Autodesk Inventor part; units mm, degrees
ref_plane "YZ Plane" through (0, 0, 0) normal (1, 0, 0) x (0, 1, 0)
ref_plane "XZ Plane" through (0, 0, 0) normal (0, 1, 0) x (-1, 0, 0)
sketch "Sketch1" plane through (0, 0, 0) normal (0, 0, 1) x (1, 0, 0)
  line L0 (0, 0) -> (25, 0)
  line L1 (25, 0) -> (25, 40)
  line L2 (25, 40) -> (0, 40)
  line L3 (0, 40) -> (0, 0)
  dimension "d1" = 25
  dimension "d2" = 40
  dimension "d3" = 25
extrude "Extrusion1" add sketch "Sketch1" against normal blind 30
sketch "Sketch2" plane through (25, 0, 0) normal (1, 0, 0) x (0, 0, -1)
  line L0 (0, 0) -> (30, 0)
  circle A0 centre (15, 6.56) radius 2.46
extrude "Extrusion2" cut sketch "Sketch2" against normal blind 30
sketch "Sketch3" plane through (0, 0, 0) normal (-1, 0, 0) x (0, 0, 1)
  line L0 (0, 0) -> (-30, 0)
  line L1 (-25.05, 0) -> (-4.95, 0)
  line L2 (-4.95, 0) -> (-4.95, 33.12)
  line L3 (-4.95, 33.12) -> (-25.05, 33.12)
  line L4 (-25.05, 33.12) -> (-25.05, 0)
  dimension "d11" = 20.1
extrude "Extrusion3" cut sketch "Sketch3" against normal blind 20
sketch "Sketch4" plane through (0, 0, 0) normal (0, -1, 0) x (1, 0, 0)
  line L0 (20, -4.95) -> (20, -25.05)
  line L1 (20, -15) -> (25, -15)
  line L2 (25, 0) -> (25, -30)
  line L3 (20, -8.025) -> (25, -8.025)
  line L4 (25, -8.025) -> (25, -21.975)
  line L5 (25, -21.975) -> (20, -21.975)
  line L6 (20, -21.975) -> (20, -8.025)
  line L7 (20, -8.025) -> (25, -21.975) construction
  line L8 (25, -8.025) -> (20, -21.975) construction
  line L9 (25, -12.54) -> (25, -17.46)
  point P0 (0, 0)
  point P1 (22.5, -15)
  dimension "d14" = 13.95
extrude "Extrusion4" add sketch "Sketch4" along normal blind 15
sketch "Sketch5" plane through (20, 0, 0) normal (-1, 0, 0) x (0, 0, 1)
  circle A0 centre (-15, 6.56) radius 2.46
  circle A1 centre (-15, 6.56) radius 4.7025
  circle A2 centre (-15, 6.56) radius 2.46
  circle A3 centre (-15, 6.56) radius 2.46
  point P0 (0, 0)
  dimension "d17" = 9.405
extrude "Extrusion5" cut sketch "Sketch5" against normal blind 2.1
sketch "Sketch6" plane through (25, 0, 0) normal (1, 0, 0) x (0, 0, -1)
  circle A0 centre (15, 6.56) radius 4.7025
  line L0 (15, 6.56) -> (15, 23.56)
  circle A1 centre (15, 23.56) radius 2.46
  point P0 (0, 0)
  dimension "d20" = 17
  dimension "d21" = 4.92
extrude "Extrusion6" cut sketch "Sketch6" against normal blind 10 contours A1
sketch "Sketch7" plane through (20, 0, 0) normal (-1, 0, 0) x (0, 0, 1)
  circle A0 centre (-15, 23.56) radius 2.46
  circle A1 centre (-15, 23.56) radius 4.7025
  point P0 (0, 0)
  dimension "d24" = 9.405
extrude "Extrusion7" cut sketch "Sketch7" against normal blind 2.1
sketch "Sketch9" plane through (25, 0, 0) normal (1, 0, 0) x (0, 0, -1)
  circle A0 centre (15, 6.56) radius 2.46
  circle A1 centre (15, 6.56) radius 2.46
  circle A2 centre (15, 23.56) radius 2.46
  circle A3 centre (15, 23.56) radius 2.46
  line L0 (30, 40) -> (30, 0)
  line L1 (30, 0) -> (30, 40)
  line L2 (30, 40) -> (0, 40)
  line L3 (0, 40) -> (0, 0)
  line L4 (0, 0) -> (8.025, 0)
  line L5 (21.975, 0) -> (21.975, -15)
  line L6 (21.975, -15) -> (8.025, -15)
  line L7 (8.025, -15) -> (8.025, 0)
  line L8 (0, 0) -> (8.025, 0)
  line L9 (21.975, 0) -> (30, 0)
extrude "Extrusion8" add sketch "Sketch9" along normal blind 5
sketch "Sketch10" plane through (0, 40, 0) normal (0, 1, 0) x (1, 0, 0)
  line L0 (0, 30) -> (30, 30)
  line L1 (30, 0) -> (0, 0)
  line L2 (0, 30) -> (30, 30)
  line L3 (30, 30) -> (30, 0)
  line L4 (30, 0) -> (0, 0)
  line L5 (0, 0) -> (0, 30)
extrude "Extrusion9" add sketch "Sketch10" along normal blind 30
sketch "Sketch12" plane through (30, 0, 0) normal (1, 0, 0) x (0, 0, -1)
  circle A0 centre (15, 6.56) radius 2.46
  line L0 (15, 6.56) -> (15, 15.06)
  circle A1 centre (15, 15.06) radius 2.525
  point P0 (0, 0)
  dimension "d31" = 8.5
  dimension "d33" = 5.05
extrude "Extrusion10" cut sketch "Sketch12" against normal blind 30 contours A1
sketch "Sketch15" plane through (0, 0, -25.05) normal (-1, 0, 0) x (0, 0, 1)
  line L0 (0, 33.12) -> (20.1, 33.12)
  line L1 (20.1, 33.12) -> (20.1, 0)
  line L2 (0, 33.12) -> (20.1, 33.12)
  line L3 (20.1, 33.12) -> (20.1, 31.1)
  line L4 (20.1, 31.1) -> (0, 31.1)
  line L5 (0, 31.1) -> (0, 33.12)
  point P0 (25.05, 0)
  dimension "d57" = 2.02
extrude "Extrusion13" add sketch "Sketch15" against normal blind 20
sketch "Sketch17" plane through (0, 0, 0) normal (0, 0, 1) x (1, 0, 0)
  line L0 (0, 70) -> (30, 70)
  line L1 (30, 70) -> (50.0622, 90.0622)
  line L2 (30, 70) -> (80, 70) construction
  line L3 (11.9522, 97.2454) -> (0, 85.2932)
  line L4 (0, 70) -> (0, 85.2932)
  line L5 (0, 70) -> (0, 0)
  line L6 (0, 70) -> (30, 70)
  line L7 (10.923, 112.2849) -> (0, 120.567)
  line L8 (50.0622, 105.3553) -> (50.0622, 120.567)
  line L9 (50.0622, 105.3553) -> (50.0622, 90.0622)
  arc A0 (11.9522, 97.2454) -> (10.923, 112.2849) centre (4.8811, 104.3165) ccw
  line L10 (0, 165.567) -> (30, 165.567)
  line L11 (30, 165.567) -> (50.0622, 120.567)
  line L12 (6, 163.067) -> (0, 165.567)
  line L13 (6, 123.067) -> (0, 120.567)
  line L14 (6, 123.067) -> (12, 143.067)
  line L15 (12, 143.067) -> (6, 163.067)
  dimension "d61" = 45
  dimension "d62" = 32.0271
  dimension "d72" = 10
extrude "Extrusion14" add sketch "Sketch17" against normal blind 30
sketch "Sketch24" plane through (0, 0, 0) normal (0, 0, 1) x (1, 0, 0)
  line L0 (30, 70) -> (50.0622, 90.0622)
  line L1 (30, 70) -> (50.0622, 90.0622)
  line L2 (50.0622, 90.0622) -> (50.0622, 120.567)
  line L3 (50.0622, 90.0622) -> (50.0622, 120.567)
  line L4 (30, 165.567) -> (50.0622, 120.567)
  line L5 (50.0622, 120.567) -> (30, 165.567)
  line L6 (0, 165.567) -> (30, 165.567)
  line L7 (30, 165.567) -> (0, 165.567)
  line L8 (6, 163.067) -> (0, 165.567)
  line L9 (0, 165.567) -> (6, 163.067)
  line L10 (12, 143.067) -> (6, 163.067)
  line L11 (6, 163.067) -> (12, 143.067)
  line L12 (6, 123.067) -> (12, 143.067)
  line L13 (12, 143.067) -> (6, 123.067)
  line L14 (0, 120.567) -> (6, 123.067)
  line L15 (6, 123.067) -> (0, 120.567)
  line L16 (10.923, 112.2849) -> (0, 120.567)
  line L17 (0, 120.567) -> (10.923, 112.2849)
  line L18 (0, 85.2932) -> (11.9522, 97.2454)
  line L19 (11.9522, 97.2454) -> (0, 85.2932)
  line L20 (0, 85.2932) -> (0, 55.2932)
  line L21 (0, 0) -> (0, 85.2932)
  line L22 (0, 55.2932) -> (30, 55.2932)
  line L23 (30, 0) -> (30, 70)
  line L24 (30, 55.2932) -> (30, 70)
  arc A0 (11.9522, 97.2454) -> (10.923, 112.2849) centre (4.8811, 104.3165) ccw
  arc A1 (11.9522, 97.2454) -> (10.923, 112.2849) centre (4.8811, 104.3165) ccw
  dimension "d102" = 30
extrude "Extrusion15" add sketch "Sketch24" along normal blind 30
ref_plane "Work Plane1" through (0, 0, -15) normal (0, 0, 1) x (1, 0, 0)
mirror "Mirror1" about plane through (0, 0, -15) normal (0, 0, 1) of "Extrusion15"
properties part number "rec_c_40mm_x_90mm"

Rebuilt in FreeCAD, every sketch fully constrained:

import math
import FreeCAD as App
import Part
import Sketcher
from FreeCAD import Vector
Q = App.Units.Quantity

doc = App.newDocument("Part")
body = doc.addObject("PartDesign::Body", "Body")

# Sketch on XY plane
sketch1 = body.newObject("Sketcher::SketchObject", "Sketch")
sketch1.AttachmentSupport = (doc.getObject("XY_Plane"), [""])
sketch1.MapMode = "FlatFace"
sketch1.addGeometry([
    Part.LineSegment(Vector(0, 40, 0), Vector(0, 0, 0)),
    Part.LineSegment(Vector(0, 0, 0), Vector(25, 0, 0)),
    Part.LineSegment(Vector(25, 0, 0), Vector(25, 40, 0)),
    Part.LineSegment(Vector(25, 40, 0), Vector(0, 40, 0)),
], False)
sketch1.addConstraint([
    Sketcher.Constraint("Coincident", 0, 2, 1, 1),
    Sketcher.Constraint("Coincident", 1, 2, 2, 1),
    Sketcher.Constraint("Coincident", 2, 2, 3, 1),
    Sketcher.Constraint("Coincident", 3, 2, 0, 1),
    Sketcher.Constraint("Vertical", 0),
    Sketcher.Constraint("Horizontal", 1),
    Sketcher.Constraint("Vertical", 2),
    Sketcher.Constraint("Horizontal", 3),
    Sketcher.Constraint("Coincident", 0, 2, -1, 1),
    Sketcher.Constraint("DistanceX", 1, 1, 1, 2, Q("25 mm")),
    Sketcher.Constraint("DistanceY", 0, 2, 0, 1, Q("40 mm")),
])
pad1 = body.newObject("PartDesign::Pad", "Pad")
pad1.Profile = sketch1
pad1.Length = 30
pad1.Reversed = True

# Sketch on YZ plane
sketch2 = body.newObject("Sketcher::SketchObject", "Sketch001")
sketch2.AttachmentSupport = (doc.getObject("YZ_Plane"), [""])
sketch2.MapMode = "FlatFace"
sketch2.AttachmentOffset = App.Placement(Vector(0, 0, 25), App.Rotation())
sketch2.addGeometry(Part.Circle(Vector(6.6, -15, 0), Vector(0, 0, 1), 2.5), False)
sketch2.addConstraint([
    Sketcher.Constraint("Diameter", 0, Q("4.92 mm")),
    Sketcher.Constraint("DistanceY", 0, 3, -1, 1, Q("15 mm")),
    Sketcher.Constraint("DistanceX", -1, 1, 0, 3, Q("6.56 mm")),
])
pocket1 = body.newObject("PartDesign::Pocket", "Pocket")
pocket1.Profile = sketch2
pocket1.Length = 30

# Sketch on YZ plane
sketch3 = body.newObject("Sketcher::SketchObject", "Sketch002")
sketch3.AttachmentSupport = (doc.getObject("YZ_Plane"), [""])
sketch3.MapMode = "FlatFace"
sketch3.addGeometry([
    Part.LineSegment(Vector(0, -25, 0), Vector(0, -5, 0)),
    Part.LineSegment(Vector(0, -5, 0), Vector(33, -5, 0)),
    Part.LineSegment(Vector(33, -5, 0), Vector(33, -25, 0)),
    Part.LineSegment(Vector(33, -25, 0), Vector(0, -25, 0)),
], False)
sketch3.addConstraint([
    Sketcher.Constraint("Coincident", 0, 2, 1, 1),
    Sketcher.Constraint("Coincident", 1, 2, 2, 1),
    Sketcher.Constraint("Coincident", 2, 2, 3, 1),
    Sketcher.Constraint("Coincident", 3, 2, 0, 1),
    Sketcher.Constraint("Vertical", 0),
    Sketcher.Constraint("Horizontal", 1),
    Sketcher.Constraint("Vertical", 2),
    Sketcher.Constraint("Horizontal", 3),
    Sketcher.Constraint("PointOnObject", 0, 2, -2),
    Sketcher.Constraint("DistanceY", 0, 1, 0, 2, Q("20.1 mm")),
    Sketcher.Constraint("DistanceX", 1, 1, 1, 2, Q("33.12 mm")),
    Sketcher.Constraint("DistanceY", 0, 2, -1, 1, Q("4.95 mm")),
])
pocket2 = body.newObject("PartDesign::Pocket", "Pocket001")
pocket2.Profile = sketch3
pocket2.Length = 20
pocket2.Reversed = True

# Sketch on XZ plane
sketch4 = body.newObject("Sketcher::SketchObject", "Sketch003")
sketch4.AttachmentSupport = (doc.getObject("XZ_Plane"), [""])
sketch4.MapMode = "FlatFace"
sketch4.addGeometry([
    Part.LineSegment(Vector(25, -8, 0), Vector(20, -8, 0)),
    Part.LineSegment(Vector(20, -8, 0), Vector(20, -22, 0)),
    Part.LineSegment(Vector(20, -22, 0), Vector(25, -22, 0)),
    Part.LineSegment(Vector(25, -22, 0), Vector(25, -8, 0)),
], False)
sketch4.addConstraint([
    Sketcher.Constraint("Coincident", 0, 2, 1, 1),
    Sketcher.Constraint("Coincident", 1, 2, 2, 1),
    Sketcher.Constraint("Coincident", 2, 2, 3, 1),
    Sketcher.Constraint("Coincident", 3, 2, 0, 1),
    Sketcher.Constraint("Horizontal", 0),
    Sketcher.Constraint("Vertical", 1),
    Sketcher.Constraint("Horizontal", 2),
    Sketcher.Constraint("Vertical", 3),
    Sketcher.Constraint("DistanceY", 1, 2, 1, 1, Q("13.95 mm")),
    Sketcher.Constraint("DistanceX", 0, 2, 0, 1, Q("5 mm")),
    Sketcher.Constraint("DistanceX", -1, 1, 0, 2, Q("20 mm")),
    Sketcher.Constraint("DistanceY", 0, 2, -1, 1, Q("8.025 mm")),
])
pad2 = body.newObject("PartDesign::Pad", "Pad001")
pad2.Profile = sketch4
pad2.Length = 15

# Sketch on YZ plane
sketch5 = body.newObject("Sketcher::SketchObject", "Sketch004")
sketch5.AttachmentSupport = (doc.getObject("YZ_Plane"), [""])
sketch5.MapMode = "FlatFace"
sketch5.AttachmentOffset = App.Placement(Vector(0, 0, 20), App.Rotation())
sketch5.addGeometry([
    Part.Circle(Vector(6.6, -15, 0), Vector(0, 0, 1), 4.7),
    Part.Circle(Vector(6.6, -15, 0), Vector(0, 0, 1), 2.5),
], False)
sketch5.addConstraint([
    Sketcher.Constraint("Coincident", 1, 3, 0, 3),
    Sketcher.Constraint("Diameter", 0, Q("9.405 mm")),
    Sketcher.Constraint("Diameter", 1, Q("4.92 mm")),
    Sketcher.Constraint("DistanceY", 0, 3, -1, 1, Q("15 mm")),
    Sketcher.Constraint("DistanceX", -1, 1, 0, 3, Q("6.56 mm")),
])
pocket3 = body.newObject("PartDesign::Pocket", "Pocket002")
pocket3.Profile = sketch5
pocket3.Length = 2.1
pocket3.Reversed = True

# Sketch on YZ plane
sketch6 = body.newObject("Sketcher::SketchObject", "Sketch005")
sketch6.AttachmentSupport = (doc.getObject("YZ_Plane"), [""])
sketch6.MapMode = "FlatFace"
sketch6.AttachmentOffset = App.Placement(Vector(0, 0, 25), App.Rotation())
sketch6.addGeometry(Part.Circle(Vector(23.6, -15, 0), Vector(0, 0, 1), 2.5), False)
sketch6.addConstraint([
    Sketcher.Constraint("Diameter", 0, Q("4.92 mm")),
    Sketcher.Constraint("DistanceY", 0, 3, -1, 1, Q("15 mm")),
    Sketcher.Constraint("DistanceX", -1, 1, 0, 3, Q("23.56 mm")),
])
pocket4 = body.newObject("PartDesign::Pocket", "Pocket003")
pocket4.Profile = sketch6
pocket4.Length = 10

# Sketch on YZ plane
sketch7 = body.newObject("Sketcher::SketchObject", "Sketch006")
sketch7.AttachmentSupport = (doc.getObject("YZ_Plane"), [""])
sketch7.MapMode = "FlatFace"
sketch7.AttachmentOffset = App.Placement(Vector(0, 0, 20), App.Rotation())
sketch7.addGeometry([
    Part.Circle(Vector(23.6, -15, 0), Vector(0, 0, 1), 4.7),
    Part.Circle(Vector(23.6, -15, 0), Vector(0, 0, 1), 2.5),
], False)
sketch7.addConstraint([
    Sketcher.Constraint("Coincident", 1, 3, 0, 3),
    Sketcher.Constraint("Diameter", 0, Q("9.405 mm")),
    Sketcher.Constraint("Diameter", 1, Q("4.92 mm")),
    Sketcher.Constraint("DistanceY", 0, 3, -1, 1, Q("15 mm")),
    Sketcher.Constraint("DistanceX", -1, 1, 0, 3, Q("23.56 mm")),
])
pocket5 = body.newObject("PartDesign::Pocket", "Pocket004")
pocket5.Profile = sketch7
pocket5.Length = 2.1
pocket5.Reversed = True

# Sketch on YZ plane
sketch8 = body.newObject("Sketcher::SketchObject", "Sketch007")
sketch8.AttachmentSupport = (doc.getObject("YZ_Plane"), [""])
sketch8.MapMode = "FlatFace"
sketch8.AttachmentOffset = App.Placement(Vector(0, 0, 25), App.Rotation())
sketch8.addGeometry([
    Part.LineSegment(Vector(0, -30, 0), Vector(40, -30, 0)),  # 0
    Part.LineSegment(Vector(40, -30, 0), Vector(40, 0, 0)),  # 1
    Part.LineSegment(Vector(40, 0, 0), Vector(0, 0, 0)),  # 2
    Part.LineSegment(Vector(0, 0, 0), Vector(0, -8, 0)),  # 3
    Part.LineSegment(Vector(0, -8, 0), Vector(-15, -8, 0)),  # 4
    Part.LineSegment(Vector(-15, -8, 0), Vector(-15, -22, 0)),  # 5
    Part.LineSegment(Vector(-15, -22, 0), Vector(0, -22, 0)),  # 6
    Part.LineSegment(Vector(0, -22, 0), Vector(0, -30, 0)),  # 7
    Part.Circle(Vector(6.6, -15, 0), Vector(0, 0, 1), 2.5),  # 8
    Part.Circle(Vector(23.6, -15, 0), Vector(0, 0, 1), 2.5),  # 9
], False)
sketch8.addConstraint([
    Sketcher.Constraint("Coincident", 0, 2, 1, 1),
    Sketcher.Constraint("Coincident", 1, 2, 2, 1),
    Sketcher.Constraint("Coincident", 2, 2, 3, 1),
    Sketcher.Constraint("Coincident", 3, 2, 4, 1),
    Sketcher.Constraint("Coincident", 4, 2, 5, 1),
    Sketcher.Constraint("Coincident", 5, 2, 6, 1),
    Sketcher.Constraint("Coincident", 6, 2, 7, 1),
    Sketcher.Constraint("Coincident", 7, 2, 0, 1),
    Sketcher.Constraint("Horizontal", 0),
    Sketcher.Constraint("Vertical", 1),
    Sketcher.Constraint("Horizontal", 2),
    Sketcher.Constraint("Vertical", 3),
    Sketcher.Constraint("Horizontal", 4),
    Sketcher.Constraint("Vertical", 5),
    Sketcher.Constraint("Horizontal", 6),
    Sketcher.Constraint("Vertical", 7),
    Sketcher.Constraint("Coincident", 2, 2, -1, 1),
    Sketcher.Constraint("Equal", 8, 9),
    Sketcher.Constraint("PointOnObject", 6, 2, -2),
    Sketcher.Constraint("Horizontal", 8, 3, 9, 3),
    Sketcher.Constraint("Equal", 3, 7),
    Sketcher.Constraint("Diameter", 8, Q("4.92 mm")),
    Sketcher.Constraint("DistanceX", 0, 1, 0, 2, Q("40 mm")),
    Sketcher.Constraint("DistanceX", 4, 2, 4, 1, Q("15 mm")),
    Sketcher.Constraint("DistanceY", 1, 1, 1, 2, Q("30 mm")),
    Sketcher.Constraint("DistanceY", 8, 3, -1, 1, Q("15 mm")),
    Sketcher.Constraint("DistanceX", 8, 3, 9, 3, Q("17 mm")),
    Sketcher.Constraint("DistanceY", 5, 2, 5, 1, Q("13.95 mm")),
    Sketcher.Constraint("DistanceX", -1, 1, 8, 3, Q("6.56 mm")),
])
pad3 = body.newObject("PartDesign::Pad", "Pad002")
pad3.Profile = sketch8
pad3.Length = 5

# Sketch on XZ plane
sketch9 = body.newObject("Sketcher::SketchObject", "Sketch008")
sketch9.AttachmentSupport = (doc.getObject("XZ_Plane"), [""])
sketch9.MapMode = "FlatFace"
sketch9.AttachmentOffset = App.Placement(Vector(0, 0, -40), App.Rotation())
sketch9.addGeometry([
    Part.LineSegment(Vector(30, -30, 0), Vector(0, -30, 0)),
    Part.LineSegment(Vector(0, -30, 0), Vector(0, 0, 0)),
    Part.LineSegment(Vector(0, 0, 0), Vector(30, 0, 0)),
    Part.LineSegment(Vector(30, 0, 0), Vector(30, -30, 0)),
], False)
sketch9.addConstraint([
    Sketcher.Constraint("Coincident", 0, 2, 1, 1),
    Sketcher.Constraint("Coincident", 1, 2, 2, 1),
    Sketcher.Constraint("Coincident", 2, 2, 3, 1),
    Sketcher.Constraint("Coincident", 3, 2, 0, 1),
    Sketcher.Constraint("Horizontal", 0),
    Sketcher.Constraint("Vertical", 1),
    Sketcher.Constraint("Horizontal", 2),
    Sketcher.Constraint("Vertical", 3),
    Sketcher.Constraint("Coincident", 1, 2, -1, 1),
    Sketcher.Constraint("Equal", 2, 1),
    Sketcher.Constraint("DistanceX", 0, 2, 0, 1, Q("30 mm")),
])
pad4 = body.newObject("PartDesign::Pad", "Pad003")
pad4.Profile = sketch9
pad4.Length = 30
pad4.Reversed = True

# Sketch on YZ plane
sketch10 = body.newObject("Sketcher::SketchObject", "Sketch009")
sketch10.AttachmentSupport = (doc.getObject("YZ_Plane"), [""])
sketch10.MapMode = "FlatFace"
sketch10.AttachmentOffset = App.Placement(Vector(0, 0, 30), App.Rotation())
sketch10.addGeometry(Part.Circle(Vector(15.1, -15, 0), Vector(0, 0, 1), 2.5), False)
sketch10.addConstraint([
    Sketcher.Constraint("Diameter", 0, Q("5.05 mm")),
    Sketcher.Constraint("DistanceY", 0, 3, -1, 1, Q("15 mm")),
    Sketcher.Constraint("DistanceX", -1, 1, 0, 3, Q("15.06 mm")),
])
pocket6 = body.newObject("PartDesign::Pocket", "Pocket005")
pocket6.Profile = sketch10
pocket6.Length = 30

# Sketch on YZ plane
sketch11 = body.newObject("Sketcher::SketchObject", "Sketch010")
sketch11.AttachmentSupport = (doc.getObject("YZ_Plane"), [""])
sketch11.MapMode = "FlatFace"
sketch11.addGeometry([
    Part.LineSegment(Vector(33.1, -5, 0), Vector(33.1, -25.1, 0)),
    Part.LineSegment(Vector(33.1, -25.1, 0), Vector(31.1, -25.1, 0)),
    Part.LineSegment(Vector(31.1, -25.1, 0), Vector(31.1, -5, 0)),
    Part.LineSegment(Vector(31.1, -5, 0), Vector(33.1, -5, 0)),
], False)
sketch11.addConstraint([
    Sketcher.Constraint("Coincident", 0, 2, 1, 1),
    Sketcher.Constraint("Coincident", 1, 2, 2, 1),
    Sketcher.Constraint("Coincident", 2, 2, 3, 1),
    Sketcher.Constraint("Coincident", 3, 2, 0, 1),
    Sketcher.Constraint("Vertical", 0),
    Sketcher.Constraint("Horizontal", 1),
    Sketcher.Constraint("Vertical", 2),
    Sketcher.Constraint("Horizontal", 3),
    Sketcher.Constraint("DistanceX", 1, 2, 1, 1, Q("2.02 mm")),
    Sketcher.Constraint("DistanceY", 0, 2, 0, 1, Q("20.1 mm")),
    Sketcher.Constraint("DistanceX", -1, 1, 1, 2, Q("31.1 mm")),
    Sketcher.Constraint("DistanceY", 0, 2, -1, 1, Q("25.05 mm")),
])
pad5 = body.newObject("PartDesign::Pad", "Pad004")
pad5.Profile = sketch11
pad5.Length = 20

# Sketch on XY plane
sketch12 = body.newObject("Sketcher::SketchObject", "Sketch011")
sketch12.AttachmentSupport = (doc.getObject("XY_Plane"), [""])
sketch12.MapMode = "FlatFace"
sketch12.addGeometry([
    Part.LineSegment(Vector(0, 85, 0), Vector(0, 70, 0)),  # 0
    Part.LineSegment(Vector(0, 70, 0), Vector(30, 70, 0)),  # 1
    Part.LineSegment(Vector(30, 70, 0), Vector(50, 90, 0)),  # 2
    Part.LineSegment(Vector(50, 90, 0), Vector(50, 121, 0)),  # 3
    Part.LineSegment(Vector(50, 121, 0), Vector(30, 166, 0)),  # 4
    Part.LineSegment(Vector(30, 166, 0), Vector(0, 166, 0)),  # 5
    Part.LineSegment(Vector(0, 166, 0), Vector(6, 163, 0)),  # 6
    Part.LineSegment(Vector(6, 163, 0), Vector(12, 143, 0)),  # 7
    Part.LineSegment(Vector(12, 143, 0), Vector(6, 123, 0)),  # 8
    Part.LineSegment(Vector(6, 123, 0), Vector(0, 121, 0)),  # 9
    Part.LineSegment(Vector(0, 121, 0), Vector(11, 112, 0)),  # 10
    Part.ArcOfCircle(Part.Circle(Vector(5, 104, 0), Vector(0, 0, 1), 10), math.radians(-45), math.radians(53)),  # 11
    Part.LineSegment(Vector(12, 97, 0), Vector(0, 85, 0)),  # 12
], False)
sketch12.addConstraint([
    Sketcher.Constraint("Coincident", 0, 2, 1, 1),
    Sketcher.Constraint("Coincident", 1, 2, 2, 1),
    Sketcher.Constraint("Coincident", 2, 2, 3, 1),
    Sketcher.Constraint("Coincident", 3, 2, 4, 1),
    Sketcher.Constraint("Coincident", 4, 2, 5, 1),
    Sketcher.Constraint("Coincident", 5, 2, 6, 1),
    Sketcher.Constraint("Coincident", 6, 2, 7, 1),
    Sketcher.Constraint("Coincident", 7, 2, 8, 1),
    Sketcher.Constraint("Coincident", 8, 2, 9, 1),
    Sketcher.Constraint("Coincident", 9, 2, 10, 1),
    Sketcher.Constraint("Tangent", 10, 2, 11, 2),
    Sketcher.Constraint("Tangent", 11, 1, 12, 1),
    Sketcher.Constraint("Coincident", 12, 2, 0, 1),
    Sketcher.Constraint("Vertical", 0),
    Sketcher.Constraint("Horizontal", 1),
    Sketcher.Constraint("Vertical", 3),
    Sketcher.Constraint("Horizontal", 5),
    Sketcher.Constraint("PointOnObject", 0, 2, -2),
    Sketcher.Constraint("PointOnObject", 5, 2, -2),
    Sketcher.Constraint("PointOnObject", 9, 2, -2),
    Sketcher.Constraint("Parallel", 2, 12),
    Sketcher.Constraint("Horizontal", 3, 2, 9, 2),
    Sketcher.Constraint("Vertical", 1, 2, 4, 2),
    Sketcher.Constraint("Vertical", 6, 2, 8, 2),
    Sketcher.Constraint("Equal", 7, 8),
    Sketcher.Constraint("Equal", 6, 9),
    Sketcher.Constraint("Radius", 11, Q("10 mm")),
    Sketcher.Constraint("Angle", 2, Q("45 deg")),
    Sketcher.Constraint("DistanceY", 3, 2, 4, 2, Q("45 mm")),
    Sketcher.Constraint("DistanceX", 1, 1, 1, 2, Q("30 mm")),
    Sketcher.Constraint("DistanceY", -1, 1, 0, 2, Q("70 mm")),
    Sketcher.Constraint("DistanceX", -1, 1, 6, 2, Q("6 mm")),
    Sketcher.Constraint("DistanceX", -1, 1, 7, 2, Q("12 mm")),
    Sketcher.Constraint("Angle", 7, Q("-73.3008 deg")),
    Sketcher.Constraint("Angle", 10, Q("-37.1703 deg")),
    Sketcher.Constraint("Distance", 12, Q("16.903 mm")),
    Sketcher.Constraint("DistanceY", 0, 2, 0, 1, Q("15.2932 mm")),
    Sketcher.Constraint("DistanceY", 3, 1, 3, 2, Q("30.5048 mm")),
])
pad6 = body.newObject("PartDesign::Pad", "Pad005")
pad6.Profile = sketch12
pad6.Length = 30
pad6.Reversed = True

# Sketch on XY plane
sketch13 = body.newObject("Sketcher::SketchObject", "Sketch012")
sketch13.AttachmentSupport = (doc.getObject("XY_Plane"), [""])
sketch13.MapMode = "FlatFace"
sketch13.addGeometry([
    Part.LineSegment(Vector(30, 55, 0), Vector(30, 70, 0)),  # 0
    Part.LineSegment(Vector(30, 70, 0), Vector(50, 90, 0)),  # 1
    Part.LineSegment(Vector(50, 90, 0), Vector(50, 121, 0)),  # 2
    Part.LineSegment(Vector(50, 121, 0), Vector(30, 166, 0)),  # 3
    Part.LineSegment(Vector(30, 166, 0), Vector(0, 166, 0)),  # 4
    Part.LineSegment(Vector(0, 166, 0), Vector(6, 163, 0)),  # 5
    Part.LineSegment(Vector(6, 163, 0), Vector(12, 143, 0)),  # 6
    Part.LineSegment(Vector(12, 143, 0), Vector(6, 123, 0)),  # 7
    Part.LineSegment(Vector(6, 123, 0), Vector(0, 121, 0)),  # 8
    Part.LineSegment(Vector(0, 121, 0), Vector(11, 112, 0)),  # 9
    Part.ArcOfCircle(Part.Circle(Vector(5, 104, 0), Vector(0, 0, 1), 10), math.radians(-45), math.radians(53)),  # 10
    Part.LineSegment(Vector(12, 97, 0), Vector(0, 85, 0)),  # 11
    Part.LineSegment(Vector(0, 85, 0), Vector(0, 55, 0)),  # 12
    Part.LineSegment(Vector(0, 55, 0), Vector(30, 55, 0)),  # 13
], False)
sketch13.addConstraint([
    Sketcher.Constraint("Coincident", 0, 2, 1, 1),
    Sketcher.Constraint("Coincident", 1, 2, 2, 1),
    Sketcher.Constraint("Coincident", 2, 2, 3, 1),
    Sketcher.Constraint("Coincident", 3, 2, 4, 1),
    Sketcher.Constraint("Coincident", 4, 2, 5, 1),
    Sketcher.Constraint("Coincident", 5, 2, 6, 1),
    Sketcher.Constraint("Coincident", 6, 2, 7, 1),
    Sketcher.Constraint("Coincident", 7, 2, 8, 1),
    Sketcher.Constraint("Coincident", 8, 2, 9, 1),
    Sketcher.Constraint("Tangent", 9, 2, 10, 2),
    Sketcher.Constraint("Tangent", 10, 1, 11, 1),
    Sketcher.Constraint("Coincident", 11, 2, 12, 1),
    Sketcher.Constraint("Coincident", 12, 2, 13, 1),
    Sketcher.Constraint("Coincident", 13, 2, 0, 1),
    Sketcher.Constraint("Vertical", 0),
    Sketcher.Constraint("Vertical", 2),
    Sketcher.Constraint("Horizontal", 4),
    Sketcher.Constraint("Vertical", 12),
    Sketcher.Constraint("Horizontal", 13),
    Sketcher.Constraint("PointOnObject", 4, 2, -2),
    Sketcher.Constraint("PointOnObject", 8, 2, -2),
    Sketcher.Constraint("PointOnObject", 11, 2, -2),
    Sketcher.Constraint("Parallel", 1, 11),
    Sketcher.Constraint("Horizontal", 2, 2, 8, 2),
    Sketcher.Constraint("Vertical", 0, 2, 3, 2),
    Sketcher.Constraint("Vertical", 5, 2, 7, 2),
    Sketcher.Constraint("Equal", 13, 12),
    Sketcher.Constraint("Equal", 6, 7),
    Sketcher.Constraint("Equal", 5, 8),
    Sketcher.Constraint("DistanceX", 4, 2, 4, 1, Q("30 mm")),
    Sketcher.Constraint("Radius", 10, Q("10 mm")),
    Sketcher.Constraint("Angle", 1, Q("45 deg")),
    Sketcher.Constraint("DistanceY", -1, 1, 0, 2, Q("70 mm")),
    Sketcher.Constraint("DistanceX", -1, 1, 5, 2, Q("6 mm")),
    Sketcher.Constraint("DistanceX", -1, 1, 6, 2, Q("12 mm")),
    Sketcher.Constraint("Angle", 6, Q("-73.3008 deg")),
    Sketcher.Constraint("DistanceY", 2, 2, 3, 2, Q("45 mm")),
    Sketcher.Constraint("Angle", 9, Q("-37.1703 deg")),
    Sketcher.Constraint("Distance", 11, Q("16.903 mm")),
    Sketcher.Constraint("DistanceY", 0, 1, 0, 2, Q("14.7068 mm")),
    Sketcher.Constraint("DistanceY", 2, 1, 2, 2, Q("30.5048 mm")),
])
pad7 = body.newObject("PartDesign::Pad", "Pad006")
pad7.Profile = sketch13
pad7.Length = 30
doc.recompute()

datumplane = body.newObject("PartDesign::Plane", "DatumPlane")
datumplane.AttachmentSupport = (doc.getObject("XY_Plane"), [""])
datumplane.MapMode = "FlatFace"
datumplane.AttachmentOffset = App.Placement(Vector(0, 0, -15), App.Rotation())
mirrored = body.newObject("PartDesign::Mirrored", "Mirrored")
mirrored.Originals = [pad7]
mirrored.MirrorPlane = (datumplane, [""])
body.Tip = mirrored

doc.recompute()
